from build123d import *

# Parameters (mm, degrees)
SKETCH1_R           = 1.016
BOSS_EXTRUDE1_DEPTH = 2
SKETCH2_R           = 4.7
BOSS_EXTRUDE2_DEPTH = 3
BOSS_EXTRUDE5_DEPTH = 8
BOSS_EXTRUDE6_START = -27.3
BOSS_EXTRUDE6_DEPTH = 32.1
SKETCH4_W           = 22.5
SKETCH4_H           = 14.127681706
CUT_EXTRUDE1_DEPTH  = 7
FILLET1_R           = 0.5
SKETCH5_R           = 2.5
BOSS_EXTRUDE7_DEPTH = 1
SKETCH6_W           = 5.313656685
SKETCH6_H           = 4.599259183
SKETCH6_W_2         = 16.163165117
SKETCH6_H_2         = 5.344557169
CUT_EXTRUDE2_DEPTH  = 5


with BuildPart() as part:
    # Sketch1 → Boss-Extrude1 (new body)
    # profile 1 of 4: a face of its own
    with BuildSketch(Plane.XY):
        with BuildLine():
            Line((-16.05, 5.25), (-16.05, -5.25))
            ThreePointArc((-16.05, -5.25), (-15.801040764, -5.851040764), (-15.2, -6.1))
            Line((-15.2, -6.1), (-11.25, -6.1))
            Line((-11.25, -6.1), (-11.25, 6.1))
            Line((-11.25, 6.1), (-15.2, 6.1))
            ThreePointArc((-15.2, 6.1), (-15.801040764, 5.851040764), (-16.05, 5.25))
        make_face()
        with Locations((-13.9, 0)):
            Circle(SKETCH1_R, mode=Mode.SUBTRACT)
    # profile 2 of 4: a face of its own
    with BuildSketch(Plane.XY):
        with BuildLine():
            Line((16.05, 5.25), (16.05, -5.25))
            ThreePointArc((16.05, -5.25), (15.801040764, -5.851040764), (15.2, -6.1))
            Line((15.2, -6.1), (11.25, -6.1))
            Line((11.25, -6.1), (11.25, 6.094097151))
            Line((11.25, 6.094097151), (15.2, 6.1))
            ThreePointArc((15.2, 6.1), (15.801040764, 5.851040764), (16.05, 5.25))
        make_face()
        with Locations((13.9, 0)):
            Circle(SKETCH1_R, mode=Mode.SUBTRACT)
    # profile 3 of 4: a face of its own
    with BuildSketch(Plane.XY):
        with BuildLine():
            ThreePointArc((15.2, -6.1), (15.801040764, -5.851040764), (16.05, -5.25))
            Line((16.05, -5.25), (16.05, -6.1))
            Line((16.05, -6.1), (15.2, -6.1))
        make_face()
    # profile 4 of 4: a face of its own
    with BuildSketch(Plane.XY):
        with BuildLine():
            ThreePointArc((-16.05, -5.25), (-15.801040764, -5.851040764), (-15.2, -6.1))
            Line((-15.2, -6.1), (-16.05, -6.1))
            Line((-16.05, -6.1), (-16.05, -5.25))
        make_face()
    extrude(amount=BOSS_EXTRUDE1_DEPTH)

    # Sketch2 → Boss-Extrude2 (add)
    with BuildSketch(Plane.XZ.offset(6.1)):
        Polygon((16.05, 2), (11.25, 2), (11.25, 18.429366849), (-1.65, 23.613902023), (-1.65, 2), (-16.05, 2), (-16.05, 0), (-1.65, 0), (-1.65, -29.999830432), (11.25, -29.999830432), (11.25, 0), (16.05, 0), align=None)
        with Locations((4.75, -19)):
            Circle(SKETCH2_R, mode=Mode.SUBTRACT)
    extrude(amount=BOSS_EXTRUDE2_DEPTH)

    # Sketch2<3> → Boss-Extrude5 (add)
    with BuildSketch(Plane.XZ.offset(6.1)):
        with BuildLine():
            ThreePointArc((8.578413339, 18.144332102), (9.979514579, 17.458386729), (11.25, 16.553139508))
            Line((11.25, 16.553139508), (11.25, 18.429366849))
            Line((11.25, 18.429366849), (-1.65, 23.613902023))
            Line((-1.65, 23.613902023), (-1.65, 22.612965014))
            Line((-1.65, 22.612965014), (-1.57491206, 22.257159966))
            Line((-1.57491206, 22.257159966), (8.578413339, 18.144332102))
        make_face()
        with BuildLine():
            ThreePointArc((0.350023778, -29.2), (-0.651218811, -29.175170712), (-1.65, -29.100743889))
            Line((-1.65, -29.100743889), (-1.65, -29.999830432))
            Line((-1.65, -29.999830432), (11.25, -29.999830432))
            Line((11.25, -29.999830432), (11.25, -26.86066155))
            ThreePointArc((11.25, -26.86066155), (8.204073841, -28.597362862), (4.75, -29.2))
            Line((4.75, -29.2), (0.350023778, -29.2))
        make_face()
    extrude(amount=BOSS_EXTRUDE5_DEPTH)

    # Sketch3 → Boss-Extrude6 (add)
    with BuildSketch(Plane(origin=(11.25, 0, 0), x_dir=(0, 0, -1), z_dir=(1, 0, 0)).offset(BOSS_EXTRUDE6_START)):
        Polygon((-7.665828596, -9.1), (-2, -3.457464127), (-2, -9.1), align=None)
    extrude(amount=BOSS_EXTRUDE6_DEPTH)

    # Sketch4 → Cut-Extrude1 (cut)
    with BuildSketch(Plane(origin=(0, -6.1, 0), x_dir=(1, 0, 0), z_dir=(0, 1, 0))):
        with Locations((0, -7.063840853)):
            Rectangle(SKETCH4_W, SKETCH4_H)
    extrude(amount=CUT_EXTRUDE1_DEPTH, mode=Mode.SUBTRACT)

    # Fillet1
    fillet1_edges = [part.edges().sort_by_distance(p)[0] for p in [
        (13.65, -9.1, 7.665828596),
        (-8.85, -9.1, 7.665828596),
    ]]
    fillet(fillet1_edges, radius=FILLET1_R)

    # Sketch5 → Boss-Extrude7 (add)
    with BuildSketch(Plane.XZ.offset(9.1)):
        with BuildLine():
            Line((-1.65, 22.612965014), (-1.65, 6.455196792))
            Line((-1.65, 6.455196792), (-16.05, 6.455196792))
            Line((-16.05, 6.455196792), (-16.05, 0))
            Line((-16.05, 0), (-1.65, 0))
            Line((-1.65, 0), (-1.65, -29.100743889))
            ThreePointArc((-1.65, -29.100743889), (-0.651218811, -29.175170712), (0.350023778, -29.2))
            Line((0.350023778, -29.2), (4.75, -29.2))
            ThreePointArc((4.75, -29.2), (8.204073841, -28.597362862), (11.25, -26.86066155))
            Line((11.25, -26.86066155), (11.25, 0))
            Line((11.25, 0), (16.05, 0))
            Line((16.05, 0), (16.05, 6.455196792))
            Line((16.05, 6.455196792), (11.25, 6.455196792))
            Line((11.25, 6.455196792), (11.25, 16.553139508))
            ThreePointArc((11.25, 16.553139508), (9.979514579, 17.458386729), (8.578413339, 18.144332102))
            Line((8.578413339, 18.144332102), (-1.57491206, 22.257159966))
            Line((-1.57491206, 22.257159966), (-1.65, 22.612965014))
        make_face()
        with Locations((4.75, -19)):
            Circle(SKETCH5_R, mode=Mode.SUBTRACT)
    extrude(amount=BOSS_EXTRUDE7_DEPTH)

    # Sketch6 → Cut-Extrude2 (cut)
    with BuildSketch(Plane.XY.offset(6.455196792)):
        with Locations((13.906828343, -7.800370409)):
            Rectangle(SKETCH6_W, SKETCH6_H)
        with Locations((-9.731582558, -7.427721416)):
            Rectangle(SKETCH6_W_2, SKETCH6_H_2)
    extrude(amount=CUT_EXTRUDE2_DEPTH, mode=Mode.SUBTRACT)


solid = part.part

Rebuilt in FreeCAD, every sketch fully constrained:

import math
import FreeCAD as App
import Part
import Sketcher
from FreeCAD import Vector
Q = App.Units.Quantity


def edges_at(feature, points):
    """Names of the edges that pass closest to the given points."""
    edges = feature.Shape.Edges
    near = lambda p: min(range(len(edges)), key=lambda i: edges[i].distToShape(Part.Vertex(*p))[0])
    return sorted({f"Edge{near(p) + 1}" for p in points})


def add_polygon(sketch, points):
    """Adds a closed chain of lines whose ends are joined by coincident constraints."""
    first, n = sketch.GeometryCount, len(points)
    for a, b in zip(points, points[1:] + points[:1]):
        sketch.addGeometry(Part.LineSegment(App.Vector(*a, 0), App.Vector(*b, 0)), False)
    for i in range(n):
        sketch.addConstraint(Sketcher.Constraint("Coincident", first + i, 2, first + (i + 1) % n, 1))

doc = App.newDocument("Part")
params = doc.addObject("Spreadsheet::Sheet", "Params")
for row, (alias, value) in enumerate([
    ("sketch1_radius", "0.85 mm"),
    ("sketch1_width", "4.8 mm"),
    ("sketch1_height", "12.2 mm"),
    ("pad1_length", "2 mm"),
    ("sketch2_diameter", "9.4 mm"),
    ("sketch2_height", "2 mm"),
    ("sketch2_width", "4.8 mm"),
    ("sketch2_width2", "14.4 mm"),
    ("sketch2_width3", "12.9 mm"),
    ("pad2_length", "3 mm"),
    ("sketch3_radius", "20.2 mm"),
    ("sketch3_radius2", "10.2 mm"),
    ("sketch3_width", "12.9 mm"),
    ("pad3_length", "8 mm"),
    ("pad4_length", "32.1 mm"),
    ("sketch5_width", "22.5 mm"),
    ("pocket1_length", "7 mm"),
    ("fillet_radius", "0.5 mm"),
    ("sketch6_diameter", "5 mm"),
    ("sketch6_radius", "20.2 mm"),
    ("sketch6_radius2", "10.2 mm"),
    ("sketch6_width", "14.4 mm"),
    ("sketch6_width2", "4.8 mm"),
    ("pad5_length", "1 mm"),
    ("pocket2_length", "5 mm"),
], start=1):
    params.set(f"A{row}", alias)
    params.set(f"B{row}", "=" + value)
    params.setAlias(f"B{row}", alias)

body = doc.addObject("PartDesign::Body", "Body")
body.AllowCompound = True

# Sketch on XY plane
sketch1 = body.newObject("Sketcher::SketchObject", "Sketch")
sketch1.AttachmentSupport = (doc.getObject("XY_Plane"), [""])
sketch1.MapMode = "FlatFace"
sketch1.addGeometry([
    Part.LineSegment(Vector(-16.1, 5.2, 0), Vector(-16.1, -6.1, 0)),  # 0
    Part.LineSegment(Vector(-16.1, -6.1, 0), Vector(-11.2, -6.1, 0)),  # 1
    Part.LineSegment(Vector(-11.2, -6.1, 0), Vector(-11.2, 6.1, 0)),  # 2
    Part.LineSegment(Vector(-11.2, 6.1, 0), Vector(-15.2, 6.1, 0)),  # 3
    Part.ArcOfCircle(Part.Circle(Vector(-15.2, 5.2, 0), Vector(0, 0, 1), 0.8), math.radians(90), math.radians(180)),  # 4
    Part.Circle(Vector(-13.9, 0, 0), Vector(0, 0, 1), 1),  # 5
    Part.LineSegment(Vector(16.1, -6.1, 0), Vector(16.1, 5.2, 0)),  # 6
    Part.ArcOfCircle(Part.Circle(Vector(15.2, 5.2, 0), Vector(0, 0, 1), 0.8), math.radians(0), math.radians(90)),  # 7
    Part.LineSegment(Vector(15.2, 6.1, 0), Vector(11.2, 6.1, 0)),  # 8
    Part.LineSegment(Vector(11.2, 6.1, 0), Vector(11.2, -6.1, 0)),  # 9
    Part.LineSegment(Vector(11.2, -6.1, 0), Vector(16.1, -6.1, 0)),  # 10
    Part.Circle(Vector(13.9, 0, 0), Vector(0, 0, 1), 1),  # 11
], False)
sketch1.addConstraint([
    Sketcher.Constraint("Coincident", 0, 2, 1, 1),
    Sketcher.Constraint("Coincident", 1, 2, 2, 1),
    Sketcher.Constraint("Coincident", 2, 2, 3, 1),
    Sketcher.Constraint("Tangent", 3, 2, 4, 1),
    Sketcher.Constraint("Tangent", 4, 2, 0, 1),
    Sketcher.Constraint("Tangent", 6, 2, 7, 1),
    Sketcher.Constraint("Coincident", 7, 2, 8, 1),
    Sketcher.Constraint("Coincident", 8, 2, 9, 1),
    Sketcher.Constraint("Coincident", 9, 2, 10, 1),
    Sketcher.Constraint("Coincident", 10, 2, 6, 1),
    Sketcher.Constraint("Vertical", 0),
    Sketcher.Constraint("Horizontal", 1),
    Sketcher.Constraint("Vertical", 2),
    Sketcher.Constraint("Horizontal", 3),
    Sketcher.Constraint("Vertical", 6),
    Sketcher.Constraint("Vertical", 9),
    Sketcher.Constraint("Horizontal", 10),
    Sketcher.Constraint("Equal", 4, 7),
    Sketcher.Constraint("Equal", 5, 11),
    Sketcher.Constraint("Symmetric", 5, 3, 11, 3, -1, 1),
    Sketcher.Constraint("Symmetric", 2, 2, 9, 2, -1, 1),
    Sketcher.Constraint("Symmetric", 4, 3, 7, 3, -2),
    Sketcher.Constraint("PointOnObject", 5, 3, -1),
    Sketcher.Constraint("Horizontal", 1, 2, 9, 2),
    Sketcher.Constraint("Radius", 4, Q("0.85 mm")),
    Sketcher.Constraint("Diameter", 5, Q("2.032 mm")),
    Sketcher.Constraint("DistanceX", 1, 1, 1, 2, Q("4.8 mm")),
    Sketcher.Constraint("DistanceY", 2, 1, 2, 2, Q("12.2 mm")),
    Sketcher.Constraint("DistanceX", 4, 3, -1, 1, Q("15.2 mm")),
    Sketcher.Constraint("DistanceX", 5, 3, -1, 1, Q("13.9 mm")),
    Sketcher.Constraint("DistanceX", -1, 1, 7, 2, Q("15.2 mm")),
    Sketcher.Constraint("DistanceY", 9, 2, 9, 1, Q("12.194097 mm")),
])
sketch1.setExpression("Constraints[24]", "Params.sketch1_radius")
sketch1.setExpression("Constraints[26]", "Params.sketch1_width")
sketch1.setExpression("Constraints[27]", "Params.sketch1_height")
pad1 = body.newObject("PartDesign::Pad", "Pad")
pad1.Profile = sketch1
pad1.setExpression("Length", "Params.pad1_length")

# Sketch on XZ plane
sketch2 = body.newObject("Sketcher::SketchObject", "Sketch001")
sketch2.AttachmentSupport = (doc.getObject("XZ_Plane"), [""])
sketch2.MapMode = "FlatFace"
sketch2.AttachmentOffset = App.Placement(Vector(0, 0, 6.1), App.Rotation())
add_polygon(sketch2, [(16.1, 2), (11.2, 2), (11.2, 18.4), (-1.6, 23.6), (-1.6, 2), (-16.1, 2), (-16.1, 0), (-1.6, 0), (-1.6, -30), (11.2, -30), (11.2, 0), (16.1, 0)])  # lines 0-11
sketch2.addGeometry(Part.Circle(Vector(4.8, -19, 0), Vector(0, 0, 1), 4.7), False)  # 12
sketch2.addConstraint([
    Sketcher.Constraint("Horizontal", 0),
    Sketcher.Constraint("Vertical", 1),
    Sketcher.Constraint("Vertical", 3),
    Sketcher.Constraint("Horizontal", 4),
    Sketcher.Constraint("Vertical", 5),
    Sketcher.Constraint("Horizontal", 6),
    Sketcher.Constraint("Vertical", 7),
    Sketcher.Constraint("Horizontal", 8),
    Sketcher.Constraint("Vertical", 9),
    Sketcher.Constraint("Horizontal", 10),
    Sketcher.Constraint("Vertical", 11),
    Sketcher.Constraint("Symmetric", 5, 2, 10, 2, -1, 1),
    Sketcher.Constraint("PointOnObject", 5, 2, -1),
    Sketcher.Constraint("Horizontal", 0, 2, 3, 2),
    Sketcher.Constraint("Vertical", 3, 2, 6, 2),
    Sketcher.Constraint("Vertical", 1, 2, 8, 2),
    Sketcher.Constraint("Diameter", 12, Q("9.4 mm")),
    Sketcher.Constraint("DistanceY", 5, 2, 5, 1, Q("2 mm")),
    Sketcher.Constraint("DistanceX", 0, 2, 0, 1, Q("4.8 mm")),
    Sketcher.Constraint("DistanceX", 4, 2, 4, 1, Q("14.4 mm")),
    Sketcher.Constraint("DistanceX", 8, 1, 8, 2, Q("12.9 mm")),
    Sketcher.Constraint("DistanceY", 12, 3, -1, 1, Q("19 mm")),
    Sketcher.Constraint("DistanceX", 12, 3, 0, 2, Q("6.5 mm")),
    Sketcher.Constraint("DistanceY", 7, 2, 7, 1, Q("29.99983 mm")),
    Sketcher.Constraint("DistanceY", 1, 1, 1, 2, Q("16.429367 mm")),
    Sketcher.Constraint("DistanceY", 3, 2, 3, 1, Q("21.613902 mm")),
])
sketch2.setExpression("Constraints[28]", "Params.sketch2_diameter")
sketch2.setExpression("Constraints[29]", "Params.sketch2_height")
sketch2.setExpression("Constraints[30]", "Params.sketch2_width")
sketch2.setExpression("Constraints[31]", "Params.sketch2_width2")
sketch2.setExpression("Constraints[32]", "Params.sketch2_width3")
pad2 = body.newObject("PartDesign::Pad", "Pad001")
pad2.Profile = sketch2
pad2.setExpression("Length", "Params.pad2_length")

# Sketch on XZ plane
sketch3 = body.newObject("Sketcher::SketchObject", "Sketch002")
sketch3.AttachmentSupport = (doc.getObject("XZ_Plane"), [""])
sketch3.MapMode = "FlatFace"
sketch3.AttachmentOffset = App.Placement(Vector(0, 0, 6.1), App.Rotation())
sketch3.addGeometry([
    Part.ArcOfCircle(Part.Circle(Vector(5.1, 9.27, 0), Vector(0, 0, 1), 9.53), math.radians(49.84), math.radians(68.61)),  # 0
    Part.LineSegment(Vector(11.25, 16.55, 0), Vector(11.25, 18.43, 0)),  # 1
    Part.LineSegment(Vector(11.25, 18.43, 0), Vector(-1.65, 23.61, 0)),  # 2
    Part.LineSegment(Vector(-1.65, 23.61, 0), Vector(-1.65, 22.61, 0)),  # 3
    Part.LineSegment(Vector(-1.65, 22.61, 0), Vector(-1.57, 22.26, 0)),  # 4
    Part.LineSegment(Vector(-1.57, 22.26, 0), Vector(8.58, 18.14, 0)),  # 5
    Part.ArcOfCircle(Part.Circle(Vector(0.35, -9, 0), Vector(0, 0, 1), 20.2), math.radians(-95.68), math.radians(-90)),  # 6
    Part.LineSegment(Vector(-1.65, -29.1, 0), Vector(-1.65, -30, 0)),  # 7
    Part.LineSegment(Vector(-1.65, -30, 0), Vector(11.25, -30, 0)),  # 8
    Part.LineSegment(Vector(11.25, -30, 0), Vector(11.25, -26.86, 0)),  # 9
    Part.ArcOfCircle(Part.Circle(Vector(4.75, -19, 0), Vector(0, 0, 1), 10.2), math.radians(-90), math.radians(-50)),  # 10
    Part.LineSegment(Vector(4.75, -29.2, 0), Vector(0.35, -29.2, 0)),  # 11
], False)
sketch3.addConstraint([
    Sketcher.Constraint("Coincident", 0, 1, 1, 1),
    Sketcher.Constraint("Coincident", 1, 2, 2, 1),
    Sketcher.Constraint("Coincident", 2, 2, 3, 1),
    Sketcher.Constraint("Coincident", 3, 2, 4, 1),
    Sketcher.Constraint("Coincident", 4, 2, 5, 1),
    Sketcher.Constraint("Coincident", 5, 2, 0, 2),
    Sketcher.Constraint("Coincident", 6, 1, 7, 1),
    Sketcher.Constraint("Coincident", 7, 2, 8, 1),
    Sketcher.Constraint("Coincident", 8, 2, 9, 1),
    Sketcher.Constraint("Coincident", 9, 2, 10, 2),
    Sketcher.Constraint("Tangent", 10, 1, 11, 1),
    Sketcher.Constraint("Tangent", 11, 2, 6, 2),
    Sketcher.Constraint("Vertical", 1),
    Sketcher.Constraint("Vertical", 3),
    Sketcher.Constraint("Vertical", 7),
    Sketcher.Constraint("Horizontal", 8),
    Sketcher.Constraint("Vertical", 9),
    Sketcher.Constraint("Horizontal", 11),
    Sketcher.Constraint("Vertical", 3, 2, 6, 1),
    Sketcher.Constraint("Vertical", 1, 2, 8, 2),
    Sketcher.Constraint("Radius", 6, Q("20.2 mm")),
    Sketcher.Constraint("Radius", 10, Q("10.2 mm")),
    Sketcher.Constraint("DistanceX", 8, 1, 8, 2, Q("12.9 mm")),
    Sketcher.Constraint("DistanceY", 6, 3, -1, 1, Q("9 mm")),
    Sketcher.Constraint("DistanceX", 10, 3, 0, 1, Q("6.5 mm")),
    Sketcher.Constraint("DistanceX", -1, 1, 10, 3, Q("4.75 mm")),
    Sketcher.Constraint("Radius", 0, Q("9.534115 mm")),
    Sketcher.Constraint("DistanceY", 9, 1, 9, 2, Q("3.139169 mm")),
    Sketcher.Constraint("DistanceY", 6, 3, 2, 2, Q("32.613902 mm")),
    Sketcher.Constraint("DistanceY", 1, 2, 3, 2, Q("4.183598 mm")),
    Sketcher.Constraint("Distance", 4, Q("0.363642 mm")),
    Sketcher.Constraint("DistanceX", 11, 2, 11, 1, Q("4.399976 mm")),
    Sketcher.Constraint("DistanceY", 1, 1, 1, 2, Q("1.876227 mm")),
    Sketcher.Constraint("DistanceY", 3, 2, 3, 1, Q("1.000937 mm")),
    Sketcher.Constraint("DistanceX", -1, 1, 0, 3, Q("5.10079 mm")),
    Sketcher.Constraint("DistanceY", -1, 1, 4, 2, Q("22.25716 mm")),
    Sketcher.Constraint("Distance", 5, Q("10.954696 mm")),
])
sketch3.setExpression("Constraints[20]", "Params.sketch3_radius")
sketch3.setExpression("Constraints[21]", "Params.sketch3_radius2")
sketch3.setExpression("Constraints[22]", "Params.sketch3_width")
pad3 = body.newObject("PartDesign::Pad", "Pad002")
pad3.Profile = sketch3
pad3.setExpression("Length", "Params.pad3_length")

# Sketch on YZ plane
sketch4 = body.newObject("Sketcher::SketchObject", "Sketch003")
sketch4.AttachmentSupport = (doc.getObject("YZ_Plane"), [""])
sketch4.MapMode = "FlatFace"
sketch4.AttachmentOffset = App.Placement(Vector(0, 0, -16.05), App.Rotation())
add_polygon(sketch4, [(-3, 2), (-9, 8), (-9, 2)])  # lines 0-2
sketch4.addConstraint([
    Sketcher.Constraint("Vertical", 1),
    Sketcher.Constraint("Horizontal", 2),
    Sketcher.Constraint("DistanceY", -1, 1, 1, 2, Q("2 mm")),
    Sketcher.Constraint("DistanceX", 0, 2, -1, 1, Q("9.1 mm")),
    Sketcher.Constraint("DistanceY", 1, 2, 1, 1, Q("5.665829 mm")),
    Sketcher.Constraint("Distance", 0, Q("7.996238 mm")),
])
pad4 = body.newObject("PartDesign::Pad", "Pad003")
pad4.Profile = sketch4
pad4.setExpression("Length", "Params.pad4_length")

# Sketch on XZ plane
sketch5 = body.newObject("Sketcher::SketchObject", "Sketch004")
sketch5.AttachmentSupport = (doc.getObject("XZ_Plane"), [""])
sketch5.MapMode = "FlatFace"
sketch5.AttachmentOffset = App.Placement(Vector(0, 0, 6.1), App.Rotation())
add_polygon(sketch5, [(-11, 0), (-11, 14), (11, 14), (11, 0)])  # lines 0-3
sketch5.addConstraint([
    Sketcher.Constraint("Vertical", 0),
    Sketcher.Constraint("Horizontal", 1),
    Sketcher.Constraint("Vertical", 2),
    Sketcher.Constraint("Horizontal", 3),
    Sketcher.Constraint("Symmetric", 2, 2, 3, 2, -1, 1),
    Sketcher.Constraint("DistanceX", 1, 1, 1, 2, Q("22.5 mm")),
    Sketcher.Constraint("DistanceY", 0, 1, 0, 2, Q("14.127682 mm")),
])
sketch5.setExpression("Constraints[9]", "Params.sketch5_width")
pocket1 = body.newObject("PartDesign::Pocket", "Pocket")
pocket1.Profile = sketch5
pocket1.setExpression("Length", "Params.pocket1_length")
doc.recompute()

fillet = body.newObject("PartDesign::Fillet", "Fillet")
fillet.Base = (pocket1, edges_at(pocket1, [(13.65, -9.1, 7.666), (-8.85, -9.1, 7.666)]))
fillet.setExpression("Radius", "Params.fillet_radius")

# Sketch on XZ plane
sketch6 = body.newObject("Sketcher::SketchObject", "Sketch005")
sketch6.AttachmentSupport = (doc.getObject("XZ_Plane"), [""])
sketch6.MapMode = "FlatFace"
sketch6.AttachmentOffset = App.Placement(Vector(0, 0, 9.1), App.Rotation())
sketch6.addGeometry([
    Part.LineSegment(Vector(-1.65, 22.61, 0), Vector(-1.65, 6.46, 0)),  # 0
    Part.LineSegment(Vector(-1.65, 6.46, 0), Vector(-16.05, 6.46, 0)),  # 1
    Part.LineSegment(Vector(-16.05, 6.46, 0), Vector(-16.05, 0, 0)),  # 2
    Part.LineSegment(Vector(-16.05, 0, 0), Vector(-1.65, 0, 0)),  # 3
    Part.LineSegment(Vector(-1.65, 0, 0), Vector(-1.65, -29.1, 0)),  # 4
    Part.ArcOfCircle(Part.Circle(Vector(0.35, -9, 0), Vector(0, 0, 1), 20.2), math.radians(-95.68), math.radians(-90)),  # 5
    Part.LineSegment(Vector(0.35, -29.2, 0), Vector(4.75, -29.2, 0)),  # 6
    Part.ArcOfCircle(Part.Circle(Vector(4.75, -19, 0), Vector(0, 0, 1), 10.2), math.radians(-90), math.radians(-50)),  # 7
    Part.LineSegment(Vector(11.25, -26.86, 0), Vector(11.25, 0, 0)),  # 8
    Part.LineSegment(Vector(11.25, 0, 0), Vector(16.05, 0, 0)),  # 9
    Part.LineSegment(Vector(16.05, 0, 0), Vector(16.05, 6.46, 0)),  # 10
    Part.LineSegment(Vector(16.05, 6.46, 0), Vector(11.25, 6.46, 0)),  # 11
    Part.LineSegment(Vector(11.25, 6.46, 0), Vector(11.25, 16.55, 0)),  # 12
    Part.ArcOfCircle(Part.Circle(Vector(5.1, 9.27, 0), Vector(0, 0, 1), 9.53), math.radians(49.84), math.radians(68.61)),  # 13
    Part.LineSegment(Vector(8.58, 18.14, 0), Vector(-1.57, 22.26, 0)),  # 14
    Part.LineSegment(Vector(-1.57, 22.26, 0), Vector(-1.65, 22.61, 0)),  # 15
    Part.Circle(Vector(4.75, -19, 0), Vector(0, 0, 1), 2.5),  # 16
], False)
sketch6.addConstraint([
    Sketcher.Constraint("Coincident", 0, 2, 1, 1),
    Sketcher.Constraint("Coincident", 1, 2, 2, 1),
    Sketcher.Constraint("Coincident", 2, 2, 3, 1),
    Sketcher.Constraint("Coincident", 3, 2, 4, 1),
    Sketcher.Constraint("Coincident", 4, 2, 5, 1),
    Sketcher.Constraint("Tangent", 5, 2, 6, 1),
    Sketcher.Constraint("Tangent", 6, 2, 7, 1),
    Sketcher.Constraint("Coincident", 7, 2, 8, 1),
    Sketcher.Constraint("Coincident", 8, 2, 9, 1),
    Sketcher.Constraint("Coincident", 9, 2, 10, 1),
    Sketcher.Constraint("Coincident", 10, 2, 11, 1),
    Sketcher.Constraint("Coincident", 11, 2, 12, 1),
    Sketcher.Constraint("Coincident", 12, 2, 13, 1),
    Sketcher.Constraint("Coincident", 13, 2, 14, 1),
    Sketcher.Constraint("Coincident", 14, 2, 15, 1),
    Sketcher.Constraint("Coincident", 15, 2, 0, 1),
    Sketcher.Constraint("Vertical", 0),
    Sketcher.Constraint("Horizontal", 1),
    Sketcher.Constraint("Vertical", 2),
    Sketcher.Constraint("Horizontal", 3),
    Sketcher.Constraint("Vertical", 4),
    Sketcher.Constraint("Horizontal", 6),
    Sketcher.Constraint("Vertical", 8),
    Sketcher.Constraint("Horizontal", 9),
    Sketcher.Constraint("Vertical", 10),
    Sketcher.Constraint("Horizontal", 11),
    Sketcher.Constraint("Vertical", 12),
    Sketcher.Constraint("Coincident", 16, 3, 7, 3),
    Sketcher.Constraint("Symmetric", 2, 2, 9, 2, -1, 1),
    Sketcher.Constraint("PointOnObject", 2, 2, -1),
    Sketcher.Constraint("Horizontal", 1, 2, 10, 2),
    Sketcher.Constraint("Vertical", 0, 2, 3, 2),
    Sketcher.Constraint("Vertical", 8, 2, 11, 2),
    Sketcher.Constraint("Diameter", 16, Q("5 mm")),
    Sketcher.Constraint("Radius", 5, Q("20.2 mm")),
    Sketcher.Constraint("Radius", 7, Q("10.2 mm")),
    Sketcher.Constraint("DistanceX", 1, 2, 1, 1, Q("14.4 mm")),
    Sketcher.Constraint("DistanceX", 9, 1, 9, 2, Q("4.8 mm")),
    Sketcher.Constraint("DistanceY", 5, 3, -1, 1, Q("9 mm")),
    Sketcher.Constraint("DistanceX", 0, 2, 16, 3, Q("6.4 mm")),
    Sketcher.Constraint("DistanceX", 6, 2, 7, 2, Q("6.5 mm")),
    Sketcher.Constraint("Radius", 13, Q("9.534115 mm")),
    Sketcher.Constraint("DistanceY", 0, 2, 0, 1, Q("16.157768 mm")),
    Sketcher.Constraint("Distance", 15, Q("0.363642 mm")),
    Sketcher.Constraint("DistanceX", 6, 1, 6, 2, Q("4.399976 mm")),
    Sketcher.Constraint("DistanceY", 2, 2, 2, 1, Q("6.455197 mm")),
    Sketcher.Constraint("DistanceY", 12, 1, 12, 2, Q("10.097943 mm")),
    Sketcher.Constraint("DistanceX", -1, 1, 13, 3, Q("5.10079 mm")),
    Sketcher.Constraint("DistanceY", -1, 1, 14, 2, Q("22.25716 mm")),
    Sketcher.Constraint("Distance", 14, Q("10.954696 mm")),
])
sketch6.setExpression("Constraints[33]", "Params.sketch6_diameter")
sketch6.setExpression("Constraints[34]", "Params.sketch6_radius")
sketch6.setExpression("Constraints[35]", "Params.sketch6_radius2")
sketch6.setExpression("Constraints[36]", "Params.sketch6_width")
sketch6.setExpression("Constraints[37]", "Params.sketch6_width2")
pad5 = body.newObject("PartDesign::Pad", "Pad004")
pad5.Profile = sketch6
pad5.setExpression("Length", "Params.pad5_length")

# Sketch on XY plane
sketch7 = body.newObject("Sketcher::SketchObject", "Sketch006")
sketch7.AttachmentSupport = (doc.getObject("XY_Plane"), [""])
sketch7.MapMode = "FlatFace"
sketch7.AttachmentOffset = App.Placement(Vector(0, 0, 6.455197), App.Rotation())
add_polygon(sketch7, [(11.3, -5.5), (11.3, -10.1), (16.6, -10.1), (16.6, -5.5)])  # lines 0-3
add_polygon(sketch7, [(-17.8, -4.8), (-17.8, -10.1), (-1.6, -10.1), (-1.6, -4.8)])  # lines 4-7
sketch7.addConstraint([
    Sketcher.Constraint("Vertical", 0),
    Sketcher.Constraint("Horizontal", 1),
    Sketcher.Constraint("Vertical", 2),
    Sketcher.Constraint("Horizontal", 3),
    Sketcher.Constraint("Vertical", 4),
    Sketcher.Constraint("Horizontal", 5),
    Sketcher.Constraint("Vertical", 6),
    Sketcher.Constraint("Horizontal", 7),
    Sketcher.Constraint("Horizontal", 1, 2, 4, 2),
    Sketcher.Constraint("DistanceY", 0, 2, -1, 1, Q("10.1 mm")),
    Sketcher.Constraint("DistanceX", 5, 2, 0, 2, Q("12.9 mm")),
    Sketcher.Constraint("DistanceX", -1, 1, 0, 2, Q("11.25 mm")),
    Sketcher.Constraint("DistanceY", 0, 2, 0, 1, Q("4.599259 mm")),
    Sketcher.Constraint("DistanceX", 1, 1, 1, 2, Q("5.313657 mm")),
    Sketcher.Constraint("DistanceX", 5, 1, 5, 2, Q("16.163165 mm")),
    Sketcher.Constraint("DistanceY", 4, 2, 4, 1, Q("5.344557 mm")),
])
pocket2 = body.newObject("PartDesign::Pocket", "Pocket001")
pocket2.Profile = sketch7
pocket2.setExpression("Length", "Params.pocket2_length")
pocket2.Reversed = True

doc.recompute()
